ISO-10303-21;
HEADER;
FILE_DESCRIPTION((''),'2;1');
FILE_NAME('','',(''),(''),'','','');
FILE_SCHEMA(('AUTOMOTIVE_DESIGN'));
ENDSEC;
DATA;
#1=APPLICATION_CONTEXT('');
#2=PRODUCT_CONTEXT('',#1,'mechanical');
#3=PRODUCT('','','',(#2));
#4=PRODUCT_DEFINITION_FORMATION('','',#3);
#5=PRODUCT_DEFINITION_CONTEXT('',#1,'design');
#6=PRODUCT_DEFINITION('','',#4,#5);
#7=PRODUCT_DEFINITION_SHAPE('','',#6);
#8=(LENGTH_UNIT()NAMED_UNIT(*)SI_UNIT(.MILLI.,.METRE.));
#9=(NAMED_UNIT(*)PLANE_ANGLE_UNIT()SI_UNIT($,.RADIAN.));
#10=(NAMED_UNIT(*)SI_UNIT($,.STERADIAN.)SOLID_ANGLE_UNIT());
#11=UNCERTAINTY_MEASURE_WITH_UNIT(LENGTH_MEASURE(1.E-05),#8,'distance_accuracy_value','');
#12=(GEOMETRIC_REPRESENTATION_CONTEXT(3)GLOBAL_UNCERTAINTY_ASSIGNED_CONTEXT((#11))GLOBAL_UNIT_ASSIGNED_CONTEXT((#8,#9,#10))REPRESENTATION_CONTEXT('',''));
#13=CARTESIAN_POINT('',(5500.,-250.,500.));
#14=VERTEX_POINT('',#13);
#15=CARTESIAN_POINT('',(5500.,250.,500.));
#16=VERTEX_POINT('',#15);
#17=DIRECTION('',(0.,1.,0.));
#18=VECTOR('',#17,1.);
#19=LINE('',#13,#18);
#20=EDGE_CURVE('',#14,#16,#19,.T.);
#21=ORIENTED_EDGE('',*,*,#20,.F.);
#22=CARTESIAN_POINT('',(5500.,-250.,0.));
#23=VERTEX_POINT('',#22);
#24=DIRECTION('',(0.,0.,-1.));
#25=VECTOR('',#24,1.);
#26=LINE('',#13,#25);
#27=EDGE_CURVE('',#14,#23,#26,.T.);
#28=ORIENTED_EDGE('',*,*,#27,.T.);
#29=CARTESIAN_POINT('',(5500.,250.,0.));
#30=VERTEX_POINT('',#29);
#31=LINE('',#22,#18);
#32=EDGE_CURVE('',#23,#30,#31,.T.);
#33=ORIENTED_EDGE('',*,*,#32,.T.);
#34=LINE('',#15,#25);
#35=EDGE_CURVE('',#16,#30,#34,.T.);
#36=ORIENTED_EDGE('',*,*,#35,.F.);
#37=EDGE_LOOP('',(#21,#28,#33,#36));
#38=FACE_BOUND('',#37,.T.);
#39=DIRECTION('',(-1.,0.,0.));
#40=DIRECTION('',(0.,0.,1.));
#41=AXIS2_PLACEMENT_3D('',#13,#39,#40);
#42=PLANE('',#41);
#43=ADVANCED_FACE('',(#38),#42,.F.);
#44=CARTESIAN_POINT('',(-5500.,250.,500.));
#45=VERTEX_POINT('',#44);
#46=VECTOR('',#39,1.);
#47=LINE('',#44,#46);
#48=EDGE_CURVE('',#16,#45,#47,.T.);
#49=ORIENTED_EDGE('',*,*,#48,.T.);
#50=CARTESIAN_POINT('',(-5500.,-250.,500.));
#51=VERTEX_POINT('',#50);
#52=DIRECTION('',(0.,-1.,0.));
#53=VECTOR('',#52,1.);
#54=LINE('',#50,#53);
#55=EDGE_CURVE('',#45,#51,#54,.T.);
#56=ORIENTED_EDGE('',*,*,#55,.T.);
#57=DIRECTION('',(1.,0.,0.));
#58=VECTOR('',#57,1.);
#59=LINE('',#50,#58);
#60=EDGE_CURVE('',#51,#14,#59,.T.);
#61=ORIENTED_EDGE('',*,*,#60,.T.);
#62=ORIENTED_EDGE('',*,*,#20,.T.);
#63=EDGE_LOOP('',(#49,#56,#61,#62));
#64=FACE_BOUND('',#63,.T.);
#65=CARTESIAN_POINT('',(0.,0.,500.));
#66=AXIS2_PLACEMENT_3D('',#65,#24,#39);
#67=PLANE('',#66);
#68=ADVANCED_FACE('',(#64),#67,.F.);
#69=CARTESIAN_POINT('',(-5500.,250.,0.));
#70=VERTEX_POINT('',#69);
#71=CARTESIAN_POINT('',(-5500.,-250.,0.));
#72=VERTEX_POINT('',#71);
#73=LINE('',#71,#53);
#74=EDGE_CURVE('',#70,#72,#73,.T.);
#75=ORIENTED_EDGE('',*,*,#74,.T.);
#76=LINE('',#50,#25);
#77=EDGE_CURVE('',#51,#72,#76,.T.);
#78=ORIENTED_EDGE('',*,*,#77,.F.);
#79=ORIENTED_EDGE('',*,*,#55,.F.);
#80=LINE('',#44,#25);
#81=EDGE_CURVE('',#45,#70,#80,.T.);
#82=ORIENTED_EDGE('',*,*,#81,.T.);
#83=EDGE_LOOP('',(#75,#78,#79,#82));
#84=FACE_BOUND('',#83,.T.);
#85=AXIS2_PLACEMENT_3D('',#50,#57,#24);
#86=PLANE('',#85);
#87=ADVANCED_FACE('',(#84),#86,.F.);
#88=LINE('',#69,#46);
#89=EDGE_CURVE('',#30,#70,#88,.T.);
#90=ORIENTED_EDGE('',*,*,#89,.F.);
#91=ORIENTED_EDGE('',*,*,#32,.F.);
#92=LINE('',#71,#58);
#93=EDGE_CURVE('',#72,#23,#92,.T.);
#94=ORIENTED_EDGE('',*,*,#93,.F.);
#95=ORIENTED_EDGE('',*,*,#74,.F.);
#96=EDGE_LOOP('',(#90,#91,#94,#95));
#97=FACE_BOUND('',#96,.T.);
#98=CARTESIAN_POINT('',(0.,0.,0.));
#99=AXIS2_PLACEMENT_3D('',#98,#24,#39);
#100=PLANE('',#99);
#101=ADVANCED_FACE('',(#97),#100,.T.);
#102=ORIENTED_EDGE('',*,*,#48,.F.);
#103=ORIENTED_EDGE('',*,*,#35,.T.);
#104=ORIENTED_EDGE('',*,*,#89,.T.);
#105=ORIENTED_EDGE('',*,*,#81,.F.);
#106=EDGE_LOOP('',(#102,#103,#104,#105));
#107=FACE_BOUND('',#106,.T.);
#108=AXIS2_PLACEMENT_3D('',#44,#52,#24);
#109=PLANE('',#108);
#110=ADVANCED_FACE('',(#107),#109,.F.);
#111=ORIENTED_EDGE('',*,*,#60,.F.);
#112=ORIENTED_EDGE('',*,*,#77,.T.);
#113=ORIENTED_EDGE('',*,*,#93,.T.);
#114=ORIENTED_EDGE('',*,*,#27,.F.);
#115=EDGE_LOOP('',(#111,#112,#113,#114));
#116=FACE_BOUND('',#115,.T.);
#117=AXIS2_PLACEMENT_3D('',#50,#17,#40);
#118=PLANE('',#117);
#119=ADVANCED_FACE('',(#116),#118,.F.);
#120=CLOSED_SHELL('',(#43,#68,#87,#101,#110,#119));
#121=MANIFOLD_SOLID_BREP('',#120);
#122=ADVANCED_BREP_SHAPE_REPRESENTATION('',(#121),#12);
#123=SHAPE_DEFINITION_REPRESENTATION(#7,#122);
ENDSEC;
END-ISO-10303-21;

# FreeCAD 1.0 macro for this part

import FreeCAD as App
import Part
import Sketcher

V = App.Vector


def add_polygon(sketch, points):
    """Adds a closed chain of lines whose ends are joined by coincident constraints."""
    first, n = sketch.GeometryCount, len(points)
    for a, b in zip(points, points[1:] + points[:1]):
        sketch.addGeometry(Part.LineSegment(App.Vector(*a, 0), App.Vector(*b, 0)), False)
    for i in range(n):
        sketch.addConstraint(Sketcher.Constraint("Coincident", first + i, 2, first + (i + 1) % n, 1))

doc = App.newDocument("Part")
body = doc.addObject("PartDesign::Body", "Body")

sketch1 = body.newObject("Sketcher::SketchObject", "Sketch")
sketch1.AttachmentSupport = (doc.getObject("XY_Plane"), [""])
sketch1.MapMode = "FlatFace"
add_polygon(sketch1, [(-5500, 250), (-5500, -250), (5500, -250), (5500, 250)])
sketch1.addConstraint(Sketcher.Constraint("Vertical", 0))
sketch1.addConstraint(Sketcher.Constraint("Horizontal", 1))
sketch1.addConstraint(Sketcher.Constraint("Vertical", 2))
sketch1.addConstraint(Sketcher.Constraint("Horizontal", 3))
sketch1.addConstraint(Sketcher.Constraint("Symmetric", 0, 2, 2, 2, -1, 1))
sketch1.addConstraint(Sketcher.Constraint("DistanceX", 1, 1, 1, 2, 11000.0))
sketch1.addConstraint(Sketcher.Constraint("DistanceY", 0, 2, 0, 1, 500.0))
pad1 = body.newObject("PartDesign::Pad", "Pad")
pad1.Profile = sketch1
pad1.Length = 500

doc.recompute()
